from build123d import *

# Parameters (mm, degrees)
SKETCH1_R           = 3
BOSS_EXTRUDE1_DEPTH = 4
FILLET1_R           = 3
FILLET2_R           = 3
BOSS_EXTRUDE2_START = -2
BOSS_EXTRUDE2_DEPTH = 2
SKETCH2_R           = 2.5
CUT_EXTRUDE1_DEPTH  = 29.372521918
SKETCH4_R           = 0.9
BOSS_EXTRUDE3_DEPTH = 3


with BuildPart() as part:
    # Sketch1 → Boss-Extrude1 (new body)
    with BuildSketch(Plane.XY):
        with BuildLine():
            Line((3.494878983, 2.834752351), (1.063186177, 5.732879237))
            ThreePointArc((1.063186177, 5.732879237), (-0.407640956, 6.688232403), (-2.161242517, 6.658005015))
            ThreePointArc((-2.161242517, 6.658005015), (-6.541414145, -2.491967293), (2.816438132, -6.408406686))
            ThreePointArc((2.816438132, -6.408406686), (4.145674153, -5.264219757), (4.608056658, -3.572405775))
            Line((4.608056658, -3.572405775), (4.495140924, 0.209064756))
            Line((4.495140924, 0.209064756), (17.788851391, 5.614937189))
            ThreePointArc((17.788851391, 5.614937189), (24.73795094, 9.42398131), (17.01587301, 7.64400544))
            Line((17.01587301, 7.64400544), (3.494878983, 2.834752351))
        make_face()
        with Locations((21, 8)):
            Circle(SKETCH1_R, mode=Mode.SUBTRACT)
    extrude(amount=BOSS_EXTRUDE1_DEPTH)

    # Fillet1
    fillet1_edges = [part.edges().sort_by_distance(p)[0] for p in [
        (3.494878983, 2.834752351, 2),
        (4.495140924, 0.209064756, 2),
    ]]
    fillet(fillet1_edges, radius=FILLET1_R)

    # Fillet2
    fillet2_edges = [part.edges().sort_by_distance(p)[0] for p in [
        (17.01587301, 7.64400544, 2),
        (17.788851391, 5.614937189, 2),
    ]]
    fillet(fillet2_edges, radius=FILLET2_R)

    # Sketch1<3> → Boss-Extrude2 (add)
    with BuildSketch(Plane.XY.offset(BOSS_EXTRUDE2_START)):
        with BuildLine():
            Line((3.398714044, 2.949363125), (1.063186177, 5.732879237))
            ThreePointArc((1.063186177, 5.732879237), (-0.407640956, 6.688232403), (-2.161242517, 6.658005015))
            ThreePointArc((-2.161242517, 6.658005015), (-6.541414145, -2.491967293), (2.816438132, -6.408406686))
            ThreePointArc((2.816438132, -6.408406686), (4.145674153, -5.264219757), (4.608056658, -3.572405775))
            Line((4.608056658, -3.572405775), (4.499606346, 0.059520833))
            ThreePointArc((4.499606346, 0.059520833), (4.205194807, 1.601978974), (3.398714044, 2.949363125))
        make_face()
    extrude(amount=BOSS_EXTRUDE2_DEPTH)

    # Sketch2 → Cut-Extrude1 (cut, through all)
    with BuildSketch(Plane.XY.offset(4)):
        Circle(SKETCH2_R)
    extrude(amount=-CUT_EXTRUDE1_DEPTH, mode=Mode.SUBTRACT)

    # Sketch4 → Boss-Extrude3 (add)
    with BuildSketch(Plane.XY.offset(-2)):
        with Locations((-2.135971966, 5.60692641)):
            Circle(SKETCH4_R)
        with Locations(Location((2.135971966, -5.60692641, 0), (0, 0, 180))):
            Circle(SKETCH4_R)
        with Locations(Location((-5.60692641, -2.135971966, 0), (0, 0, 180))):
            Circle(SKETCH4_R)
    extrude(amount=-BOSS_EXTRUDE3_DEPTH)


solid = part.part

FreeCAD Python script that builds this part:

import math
import FreeCAD as App
import Part
import Sketcher
from FreeCAD import Vector
Q = App.Units.Quantity


def edges_at(feature, points):
    """Names of the edges that pass closest to the given points."""
    edges = feature.Shape.Edges
    near = lambda p: min(range(len(edges)), key=lambda i: edges[i].distToShape(Part.Vertex(*p))[0])
    return sorted({f"Edge{near(p) + 1}" for p in points})

doc = App.newDocument("Part")
body = doc.addObject("PartDesign::Body", "Body")

sketch1 = body.newObject("Sketcher::SketchObject", "Sketch")
sketch1.AttachmentSupport = (doc.getObject("XY_Plane"), [""])
sketch1.MapMode = "FlatFace"
sketch1.addGeometry([
    Part.LineSegment(Vector(3.5, 2.8, 0), Vector(1.1, 5.7, 0)),
    Part.ArcOfCircle(Part.Circle(Vector(-1.2, 3.8, 0), Vector(0, 0, 1), 3), math.radians(40), math.radians(108)),
    Part.ArcOfCircle(Part.Circle(Vector(0, 0, 0), Vector(0, 0, 1), 7), math.radians(108), math.radians(294)),
    Part.ArcOfCircle(Part.Circle(Vector(1.6, -3.7, 0), Vector(0, 0, 1), 3), math.radians(-66), math.radians(2)),
    Part.LineSegment(Vector(4.6, -3.6, 0), Vector(4.5, 0.2, 0)),
    Part.LineSegment(Vector(4.5, 0.2, 0), Vector(17.8, 5.6, 0)),
    Part.ArcOfCircle(Part.Circle(Vector(21, 8, 0), Vector(0, 0, 1), 4), math.radians(-143), math.radians(185)),
    Part.LineSegment(Vector(17, 7.6, 0), Vector(3.5, 2.8, 0)),
    Part.Circle(Vector(21, 8, 0), Vector(0, 0, 1), 3),
], False)
sketch1.addConstraint([
    Sketcher.Constraint("Tangent", 0, 2, 1, 1),
    Sketcher.Constraint("Tangent", 1, 2, 2, 1),
    Sketcher.Constraint("Tangent", 2, 2, 3, 1),
    Sketcher.Constraint("Tangent", 3, 2, 4, 1),
    Sketcher.Constraint("Coincident", 4, 2, 5, 1),
    Sketcher.Constraint("Coincident", 5, 2, 6, 1),
    Sketcher.Constraint("Coincident", 6, 2, 7, 1),
    Sketcher.Constraint("Coincident", 7, 2, 0, 1),
    Sketcher.Constraint("Coincident", 2, 3, -1, 1),
    Sketcher.Constraint("Coincident", 8, 3, 6, 3),
    Sketcher.Constraint("Equal", 1, 3),
    Sketcher.Constraint("Equal", 3, 8),
    Sketcher.Constraint("Equal", 0, 4),
    Sketcher.Constraint("Equal", 5, 7),
    Sketcher.Constraint("Diameter", 8, Q("6 mm")),
    Sketcher.Constraint("Radius", 2, Q("7 mm")),
    Sketcher.Constraint("Radius", 6, Q("4 mm")),
    Sketcher.Constraint("DistanceX", -1, 1, 6, 3, Q("21 mm")),
    Sketcher.Constraint("DistanceY", -1, 1, 6, 3, Q("8 mm")),
    Sketcher.Constraint("DistanceY", 2, 2, 3, 2, Q("2.836001 mm")),
    Sketcher.Constraint("DistanceY", -1, 1, 0, 2, Q("5.732879 mm")),
    Sketcher.Constraint("DistanceX", -1, 1, 2, 2, Q("2.816438 mm")),
    Sketcher.Constraint("DistanceX", -1, 1, 4, 2, Q("4.495141 mm")),
    Sketcher.Constraint("DistanceX", -1, 1, 5, 2, Q("17.788851 mm")),
    Sketcher.Constraint("DistanceX", -1, 1, 7, 2, Q("3.494879 mm")),
])
pad1 = body.newObject("PartDesign::Pad", "Pad")
pad1.Profile = sketch1
pad1.Length = 4
doc.recompute()

fillet = body.newObject("PartDesign::Fillet", "Fillet")
fillet.Base = (pad1, edges_at(pad1, [(3.495, 2.835, 2), (4.495, 0.209, 2)]))
fillet.Radius = 3
doc.recompute()

fillet2 = body.newObject("PartDesign::Fillet", "Fillet001")
fillet2.Base = (fillet, edges_at(fillet, [(17.016, 7.644, 2), (17.789, 5.615, 2)]))
fillet2.Radius = 3

sketch2 = body.newObject("Sketcher::SketchObject", "Sketch001")
sketch2.AttachmentSupport = (doc.getObject("XY_Plane"), [""])
sketch2.MapMode = "FlatFace"
sketch2.AttachmentOffset = App.Placement(Vector(0, 0, -2), App.Rotation())
sketch2.addGeometry([
    Part.LineSegment(Vector(3.4, 2.9, 0), Vector(1.1, 5.7, 0)),
    Part.ArcOfCircle(Part.Circle(Vector(-1.2, 3.8, 0), Vector(0, 0, 1), 3), math.radians(40), math.radians(108)),
    Part.ArcOfCircle(Part.Circle(Vector(0, 0, 0), Vector(0, 0, 1), 7), math.radians(108), math.radians(294)),
    Part.ArcOfCircle(Part.Circle(Vector(1.6, -3.7, 0), Vector(0, 0, 1), 3), math.radians(-66), math.radians(2)),
    Part.LineSegment(Vector(4.6, -3.6, 0), Vector(4.5, 0.1, 0)),
    Part.ArcOfCircle(Part.Circle(Vector(0, 0, 0), Vector(0, 0, 1), 4.5), math.radians(1), math.radians(41)),
], False)
sketch2.addConstraint([
    Sketcher.Constraint("Tangent", 0, 2, 1, 1),
    Sketcher.Constraint("Tangent", 1, 2, 2, 1),
    Sketcher.Constraint("Tangent", 2, 2, 3, 1),
    Sketcher.Constraint("Tangent", 3, 2, 4, 1),
    Sketcher.Constraint("Coincident", 4, 2, 5, 1),
    Sketcher.Constraint("Coincident", 5, 2, 0, 1),
    Sketcher.Constraint("Coincident", 2, 3, -1, 1),
    Sketcher.Constraint("Coincident", 5, 3, -1, 1),
    Sketcher.Constraint("Equal", 1, 3),
    Sketcher.Constraint("Equal", 0, 4),
    Sketcher.Constraint("Radius", 1, Q("3 mm")),
    Sketcher.Constraint("Radius", 2, Q("7 mm")),
    Sketcher.Constraint("Radius", 5, Q("4.5 mm")),
    Sketcher.Constraint("DistanceY", 2, 2, 3, 2, Q("2.836001 mm")),
    Sketcher.Constraint("DistanceY", -1, 1, 0, 2, Q("5.732879 mm")),
    Sketcher.Constraint("DistanceX", -1, 1, 2, 2, Q("2.816438 mm")),
])
pad2 = body.newObject("PartDesign::Pad", "Pad001")
pad2.Profile = sketch2
pad2.Length = 2

sketch3 = body.newObject("Sketcher::SketchObject", "Sketch002")
sketch3.AttachmentSupport = (doc.getObject("XY_Plane"), [""])
sketch3.MapMode = "FlatFace"
sketch3.AttachmentOffset = App.Placement(Vector(0, 0, 4), App.Rotation())
sketch3.addGeometry(Part.Circle(Vector(0, 0, 0), Vector(0, 0, 1), 2.5), False)
sketch3.addConstraint([
    Sketcher.Constraint("Coincident", 0, 3, -1, 1),
    Sketcher.Constraint("Diameter", 0, Q("5 mm")),
])
pocket1 = body.newObject("PartDesign::Pocket", "Pocket")
pocket1.Profile = sketch3
pocket1.Type = "ThroughAll"

sketch4 = body.newObject("Sketcher::SketchObject", "Sketch003")
sketch4.AttachmentSupport = (doc.getObject("XY_Plane"), [""])
sketch4.MapMode = "FlatFace"
sketch4.AttachmentOffset = App.Placement(Vector(0, 0, -2), App.Rotation())
sketch4.addGeometry([
    Part.Circle(Vector(-2.1, 5.6, 0), Vector(0, 0, 1), 0.9),
    Part.Circle(Vector(2.1, -5.6, 0), Vector(0, 0, 1), 0.9),
    Part.Circle(Vector(-5.6, -2.1, 0), Vector(0, 0, 1), 0.9),
], False)
sketch4.addConstraint([
    Sketcher.Constraint("Equal", 0, 1),
    Sketcher.Constraint("Equal", 1, 2),
    Sketcher.Constraint("Symmetric", 0, 3, 1, 3, -1, 1),
    Sketcher.Constraint("Diameter", 0, Q("1.8 mm")),
    Sketcher.Constraint("DistanceY", 2, 3, 0, 3, Q("7.742898 mm")),
    Sketcher.Constraint("DistanceX", 2, 3, 1, 3, Q("7.742898 mm")),
    Sketcher.Constraint("DistanceX", 0, 3, -1, 1, Q("2.135972 mm")),
    Sketcher.Constraint("DistanceY", 2, 3, -1, 1, Q("2.135972 mm")),
])
pad3 = body.newObject("PartDesign::Pad", "Pad002")
pad3.Profile = sketch4
pad3.Length = 3
pad3.Reversed = True

doc.recompute()
